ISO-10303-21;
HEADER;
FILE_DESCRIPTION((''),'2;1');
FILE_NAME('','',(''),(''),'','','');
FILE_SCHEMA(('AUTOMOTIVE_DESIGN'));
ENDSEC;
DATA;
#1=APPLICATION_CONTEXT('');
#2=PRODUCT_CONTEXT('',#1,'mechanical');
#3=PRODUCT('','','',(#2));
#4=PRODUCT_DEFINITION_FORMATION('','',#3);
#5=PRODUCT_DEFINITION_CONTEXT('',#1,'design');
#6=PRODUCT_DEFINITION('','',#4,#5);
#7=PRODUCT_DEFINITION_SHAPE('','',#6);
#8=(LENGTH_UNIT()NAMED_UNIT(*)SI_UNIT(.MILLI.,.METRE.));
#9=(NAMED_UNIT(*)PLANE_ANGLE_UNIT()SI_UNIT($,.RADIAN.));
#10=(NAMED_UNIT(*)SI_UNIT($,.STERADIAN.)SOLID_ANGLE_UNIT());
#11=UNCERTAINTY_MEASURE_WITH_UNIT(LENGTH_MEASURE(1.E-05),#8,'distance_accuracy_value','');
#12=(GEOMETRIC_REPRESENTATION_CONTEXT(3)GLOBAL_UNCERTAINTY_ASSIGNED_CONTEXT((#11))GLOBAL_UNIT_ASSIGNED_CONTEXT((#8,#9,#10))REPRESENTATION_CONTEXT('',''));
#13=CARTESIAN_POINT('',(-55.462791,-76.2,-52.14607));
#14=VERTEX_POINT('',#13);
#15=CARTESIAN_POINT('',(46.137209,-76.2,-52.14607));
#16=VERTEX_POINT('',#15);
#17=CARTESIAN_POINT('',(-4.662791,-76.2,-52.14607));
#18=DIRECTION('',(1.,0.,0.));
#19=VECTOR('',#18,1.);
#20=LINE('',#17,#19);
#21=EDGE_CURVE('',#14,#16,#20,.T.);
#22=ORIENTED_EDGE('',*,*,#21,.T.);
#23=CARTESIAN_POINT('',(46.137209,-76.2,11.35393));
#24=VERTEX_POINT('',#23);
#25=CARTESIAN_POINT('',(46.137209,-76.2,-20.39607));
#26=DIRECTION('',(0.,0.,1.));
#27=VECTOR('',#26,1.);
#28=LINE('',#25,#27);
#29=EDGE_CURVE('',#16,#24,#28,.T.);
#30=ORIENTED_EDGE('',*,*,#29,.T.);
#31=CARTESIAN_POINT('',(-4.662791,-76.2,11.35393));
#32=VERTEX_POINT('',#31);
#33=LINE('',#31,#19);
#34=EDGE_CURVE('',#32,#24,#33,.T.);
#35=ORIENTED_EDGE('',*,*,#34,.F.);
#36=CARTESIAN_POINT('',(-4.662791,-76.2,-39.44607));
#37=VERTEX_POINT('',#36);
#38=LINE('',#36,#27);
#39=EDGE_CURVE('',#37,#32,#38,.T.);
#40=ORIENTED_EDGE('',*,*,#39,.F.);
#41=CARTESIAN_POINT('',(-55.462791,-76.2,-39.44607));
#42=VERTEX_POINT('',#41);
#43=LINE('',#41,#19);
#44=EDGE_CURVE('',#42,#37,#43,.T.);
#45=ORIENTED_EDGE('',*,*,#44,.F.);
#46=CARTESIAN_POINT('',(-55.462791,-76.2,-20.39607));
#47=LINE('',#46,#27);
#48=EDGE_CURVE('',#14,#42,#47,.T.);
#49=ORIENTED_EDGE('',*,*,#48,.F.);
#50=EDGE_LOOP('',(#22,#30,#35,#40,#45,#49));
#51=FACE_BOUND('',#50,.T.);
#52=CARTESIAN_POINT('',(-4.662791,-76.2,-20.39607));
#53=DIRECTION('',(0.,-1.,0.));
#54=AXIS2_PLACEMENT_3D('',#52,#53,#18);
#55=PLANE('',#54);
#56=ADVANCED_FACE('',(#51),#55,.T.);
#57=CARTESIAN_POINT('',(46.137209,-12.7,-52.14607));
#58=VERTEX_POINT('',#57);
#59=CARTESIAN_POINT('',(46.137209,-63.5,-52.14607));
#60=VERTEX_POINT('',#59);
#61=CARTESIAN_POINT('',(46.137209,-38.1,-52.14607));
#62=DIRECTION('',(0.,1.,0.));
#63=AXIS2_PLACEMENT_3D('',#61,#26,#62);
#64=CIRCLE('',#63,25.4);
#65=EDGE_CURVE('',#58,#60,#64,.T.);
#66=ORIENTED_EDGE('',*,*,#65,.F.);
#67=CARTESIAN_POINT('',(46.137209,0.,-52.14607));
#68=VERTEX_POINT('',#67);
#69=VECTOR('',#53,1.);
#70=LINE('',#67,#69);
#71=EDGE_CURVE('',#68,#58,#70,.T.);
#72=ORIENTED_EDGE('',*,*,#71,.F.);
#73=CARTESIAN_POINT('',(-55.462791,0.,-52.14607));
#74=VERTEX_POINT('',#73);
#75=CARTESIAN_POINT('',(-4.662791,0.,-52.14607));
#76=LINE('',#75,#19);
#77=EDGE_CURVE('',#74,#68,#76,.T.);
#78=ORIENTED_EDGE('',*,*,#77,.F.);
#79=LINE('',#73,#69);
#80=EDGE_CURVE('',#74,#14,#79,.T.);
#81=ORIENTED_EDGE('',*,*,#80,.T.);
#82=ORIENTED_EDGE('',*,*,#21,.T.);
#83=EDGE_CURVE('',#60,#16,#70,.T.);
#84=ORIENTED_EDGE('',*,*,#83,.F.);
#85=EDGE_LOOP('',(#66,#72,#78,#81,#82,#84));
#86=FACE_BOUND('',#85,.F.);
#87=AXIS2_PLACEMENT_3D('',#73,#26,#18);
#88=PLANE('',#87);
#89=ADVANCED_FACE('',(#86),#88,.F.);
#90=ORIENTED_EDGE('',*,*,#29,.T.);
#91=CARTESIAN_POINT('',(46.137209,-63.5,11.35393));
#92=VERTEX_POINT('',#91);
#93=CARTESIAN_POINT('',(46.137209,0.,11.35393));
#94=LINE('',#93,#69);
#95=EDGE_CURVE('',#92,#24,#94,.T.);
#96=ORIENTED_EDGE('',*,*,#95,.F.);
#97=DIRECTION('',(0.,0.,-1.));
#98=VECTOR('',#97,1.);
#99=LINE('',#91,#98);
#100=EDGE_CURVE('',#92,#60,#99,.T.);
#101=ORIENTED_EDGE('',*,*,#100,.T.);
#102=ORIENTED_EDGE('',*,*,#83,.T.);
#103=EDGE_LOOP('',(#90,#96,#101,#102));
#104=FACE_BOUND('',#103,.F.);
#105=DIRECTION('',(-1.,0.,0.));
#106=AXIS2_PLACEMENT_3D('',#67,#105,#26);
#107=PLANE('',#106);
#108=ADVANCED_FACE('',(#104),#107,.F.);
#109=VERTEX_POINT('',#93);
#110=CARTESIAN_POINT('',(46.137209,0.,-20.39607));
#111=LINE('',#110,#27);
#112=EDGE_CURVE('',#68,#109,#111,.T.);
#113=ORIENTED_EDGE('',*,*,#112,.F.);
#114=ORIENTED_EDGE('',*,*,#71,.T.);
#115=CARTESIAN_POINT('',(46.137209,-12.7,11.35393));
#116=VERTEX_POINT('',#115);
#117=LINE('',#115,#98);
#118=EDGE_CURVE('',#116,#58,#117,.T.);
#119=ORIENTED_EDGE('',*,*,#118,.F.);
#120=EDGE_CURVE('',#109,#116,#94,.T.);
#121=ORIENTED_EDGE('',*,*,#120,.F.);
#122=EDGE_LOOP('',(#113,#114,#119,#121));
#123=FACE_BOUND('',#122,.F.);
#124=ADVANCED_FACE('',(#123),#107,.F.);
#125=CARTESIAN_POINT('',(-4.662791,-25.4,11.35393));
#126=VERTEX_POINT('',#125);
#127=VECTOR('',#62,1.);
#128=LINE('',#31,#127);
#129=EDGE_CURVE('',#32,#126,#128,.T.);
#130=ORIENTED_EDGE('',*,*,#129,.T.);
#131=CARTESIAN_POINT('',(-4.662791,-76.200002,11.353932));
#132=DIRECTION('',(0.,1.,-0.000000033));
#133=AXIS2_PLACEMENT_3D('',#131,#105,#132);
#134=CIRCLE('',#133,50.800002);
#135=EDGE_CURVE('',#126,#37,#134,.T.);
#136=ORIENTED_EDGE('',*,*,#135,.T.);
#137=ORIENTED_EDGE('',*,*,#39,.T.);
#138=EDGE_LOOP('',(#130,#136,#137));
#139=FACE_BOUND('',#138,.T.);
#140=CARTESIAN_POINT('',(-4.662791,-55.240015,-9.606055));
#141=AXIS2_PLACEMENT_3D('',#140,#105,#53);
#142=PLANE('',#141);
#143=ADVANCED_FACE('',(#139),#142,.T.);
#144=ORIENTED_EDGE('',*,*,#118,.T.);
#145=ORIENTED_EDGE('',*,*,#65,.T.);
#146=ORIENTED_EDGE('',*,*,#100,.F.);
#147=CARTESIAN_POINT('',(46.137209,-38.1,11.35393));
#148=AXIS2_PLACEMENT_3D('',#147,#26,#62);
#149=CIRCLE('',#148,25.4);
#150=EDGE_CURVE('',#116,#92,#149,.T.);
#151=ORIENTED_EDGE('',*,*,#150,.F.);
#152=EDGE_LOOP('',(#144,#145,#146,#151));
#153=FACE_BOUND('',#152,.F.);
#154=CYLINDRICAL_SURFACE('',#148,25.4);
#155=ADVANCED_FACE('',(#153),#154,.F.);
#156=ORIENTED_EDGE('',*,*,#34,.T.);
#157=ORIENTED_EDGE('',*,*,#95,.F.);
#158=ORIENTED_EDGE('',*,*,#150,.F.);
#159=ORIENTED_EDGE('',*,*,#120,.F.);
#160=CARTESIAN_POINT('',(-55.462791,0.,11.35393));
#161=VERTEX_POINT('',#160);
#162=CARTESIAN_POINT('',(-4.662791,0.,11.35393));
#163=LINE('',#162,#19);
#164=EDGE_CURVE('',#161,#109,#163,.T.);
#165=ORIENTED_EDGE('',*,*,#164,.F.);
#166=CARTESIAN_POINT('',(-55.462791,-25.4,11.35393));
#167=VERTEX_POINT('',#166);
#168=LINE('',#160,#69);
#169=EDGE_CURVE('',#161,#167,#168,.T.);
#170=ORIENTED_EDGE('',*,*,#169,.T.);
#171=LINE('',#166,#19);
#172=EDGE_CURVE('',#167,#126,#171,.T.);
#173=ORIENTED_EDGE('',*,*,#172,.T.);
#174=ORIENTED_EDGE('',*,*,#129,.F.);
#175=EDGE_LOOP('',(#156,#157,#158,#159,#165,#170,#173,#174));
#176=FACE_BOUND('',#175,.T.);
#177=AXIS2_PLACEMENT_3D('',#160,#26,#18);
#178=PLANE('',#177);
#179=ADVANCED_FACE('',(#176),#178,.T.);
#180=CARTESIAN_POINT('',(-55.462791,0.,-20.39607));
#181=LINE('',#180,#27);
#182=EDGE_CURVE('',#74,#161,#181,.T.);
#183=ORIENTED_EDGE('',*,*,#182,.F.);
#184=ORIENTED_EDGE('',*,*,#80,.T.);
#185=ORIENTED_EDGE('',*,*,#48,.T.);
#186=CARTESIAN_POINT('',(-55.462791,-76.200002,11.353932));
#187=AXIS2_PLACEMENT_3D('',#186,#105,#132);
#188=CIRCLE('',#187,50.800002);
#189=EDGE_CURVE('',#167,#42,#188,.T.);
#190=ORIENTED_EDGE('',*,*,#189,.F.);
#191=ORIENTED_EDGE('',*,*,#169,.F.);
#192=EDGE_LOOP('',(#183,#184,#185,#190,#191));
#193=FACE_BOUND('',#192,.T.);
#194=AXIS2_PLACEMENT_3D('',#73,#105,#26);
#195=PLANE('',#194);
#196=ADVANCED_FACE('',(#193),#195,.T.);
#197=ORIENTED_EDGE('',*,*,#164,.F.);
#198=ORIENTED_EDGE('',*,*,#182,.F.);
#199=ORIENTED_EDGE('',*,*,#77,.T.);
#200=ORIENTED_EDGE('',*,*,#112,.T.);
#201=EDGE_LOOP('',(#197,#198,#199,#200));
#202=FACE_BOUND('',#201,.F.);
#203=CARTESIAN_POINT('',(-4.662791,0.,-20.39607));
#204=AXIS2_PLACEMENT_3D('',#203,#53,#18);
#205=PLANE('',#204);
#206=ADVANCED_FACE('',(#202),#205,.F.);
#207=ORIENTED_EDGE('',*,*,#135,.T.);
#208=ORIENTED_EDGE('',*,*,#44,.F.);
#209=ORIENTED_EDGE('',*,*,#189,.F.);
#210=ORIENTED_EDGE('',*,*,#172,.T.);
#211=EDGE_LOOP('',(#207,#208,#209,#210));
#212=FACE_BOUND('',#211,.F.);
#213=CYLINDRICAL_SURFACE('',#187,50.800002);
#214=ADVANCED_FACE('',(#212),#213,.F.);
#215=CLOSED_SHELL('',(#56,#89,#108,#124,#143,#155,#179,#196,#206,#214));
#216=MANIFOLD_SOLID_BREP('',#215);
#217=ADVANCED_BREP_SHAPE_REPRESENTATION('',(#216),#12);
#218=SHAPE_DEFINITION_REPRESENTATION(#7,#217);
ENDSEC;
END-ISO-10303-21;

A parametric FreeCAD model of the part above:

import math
import FreeCAD as App
import Part
import Sketcher
from FreeCAD import Vector
Q = App.Units.Quantity


def add_polygon(sketch, points):
    """Adds a closed chain of lines whose ends are joined by coincident constraints."""
    first, n = sketch.GeometryCount, len(points)
    for a, b in zip(points, points[1:] + points[:1]):
        sketch.addGeometry(Part.LineSegment(App.Vector(*a, 0), App.Vector(*b, 0)), False)
    for i in range(n):
        sketch.addConstraint(Sketcher.Constraint("Coincident", first + i, 2, first + (i + 1) % n, 1))

doc = App.newDocument("Part")
body = doc.addObject("PartDesign::Body", "Body")

# Sketch on XZ plane
sketch1 = body.newObject("Sketcher::SketchObject", "Sketch")
sketch1.AttachmentSupport = (doc.getObject("XZ_Plane"), [""])
sketch1.MapMode = "FlatFace"
add_polygon(sketch1, [(-55.462791, 11.35393), (-55.462791, -52.14607), (46.137209, -52.14607), (46.137209, 11.35393)])  # lines 0-3
sketch1.addConstraint(Sketcher.Constraint("Vertical", 0))
sketch1.addConstraint(Sketcher.Constraint("Horizontal", 1))
sketch1.addConstraint(Sketcher.Constraint("Vertical", 2))
sketch1.addConstraint(Sketcher.Constraint("Horizontal", 3))
sketch1.addConstraint(Sketcher.Constraint("DistanceX", 1, 1, 1, 2, Q("4 in")))
sketch1.addConstraint(Sketcher.Constraint("DistanceY", 0, 2, 0, 1, Q("2.5 in")))
sketch1.addConstraint(Sketcher.Constraint("DistanceX", 0, 2, -1, 1, Q("55.462791 mm")))
sketch1.addConstraint(Sketcher.Constraint("DistanceY", 0, 2, -1, 1, Q("52.14607 mm")))
pad1 = body.newObject("PartDesign::Pad", "Pad")
pad1.Profile = sketch1
pad1.Length = Q("3 in")

# Sketch on XY plane
sketch2 = body.newObject("Sketcher::SketchObject", "Sketch001")
sketch2.AttachmentSupport = (doc.getObject("XY_Plane"), [""])
sketch2.MapMode = "FlatFace"
sketch2.AttachmentOffset = App.Placement(Vector(0, 0, 11.35393), App.Rotation())
sketch2.addGeometry(Part.LineSegment(Vector(46.137209, -63.5, 0), Vector(46.137209, -12.7, 0)), False)
sketch2.addGeometry(Part.ArcOfCircle(Part.Circle(Vector(46.137209, -38.1, 0), Vector(0, 0, 1), 25.4), math.radians(90), math.radians(270)), False)
sketch2.addConstraint(Sketcher.Constraint("Coincident", 0, 1, 1, 2))
sketch2.addConstraint(Sketcher.Constraint("Coincident", 1, 1, 0, 2))
sketch2.addConstraint(Sketcher.Constraint("Vertical", 0))
sketch2.addConstraint(Sketcher.Constraint("Vertical", 1, 3, 0, 1))
sketch2.addConstraint(Sketcher.Constraint("Radius", 1, Q("1 in")))
sketch2.addConstraint(Sketcher.Constraint("DistanceY", 1, 3, -1, 1, Q("1.5 in")))
sketch2.addConstraint(Sketcher.Constraint("DistanceX", -1, 1, 1, 3, Q("46.137209 mm")))
pocket1 = body.newObject("PartDesign::Pocket", "Pocket")
pocket1.Profile = sketch2
pocket1.Type = "ThroughAll"

# Sketch on YZ plane
sketch3 = body.newObject("Sketcher::SketchObject", "Sketch002")
sketch3.AttachmentSupport = (doc.getObject("YZ_Plane"), [""])
sketch3.MapMode = "FlatFace"
sketch3.AttachmentOffset = App.Placement(Vector(0, 0, -55.462791), App.Rotation())
sketch3.addGeometry(Part.LineSegment(Vector(-76.2, 11.35393, 0), Vector(-25.4, 11.35393, 0)), False)
sketch3.addGeometry(Part.ArcOfCircle(Part.Circle(Vector(-76.200002, 11.353932, 0), Vector(0, 0, 1), 50.800002), math.radians(-89.999998), math.radians(-0.000002)), False)
sketch3.addGeometry(Part.LineSegment(Vector(-76.2, -39.44607, 0), Vector(-76.2, 11.35393, 0)), False)
sketch3.addConstraint(Sketcher.Constraint("Coincident", 0, 2, 1, 2))
sketch3.addConstraint(Sketcher.Constraint("Coincident", 1, 1, 2, 1))
sketch3.addConstraint(Sketcher.Constraint("Coincident", 2, 2, 0, 1))
sketch3.addConstraint(Sketcher.Constraint("Horizontal", 0))
sketch3.addConstraint(Sketcher.Constraint("Vertical", 2))
sketch3.addConstraint(Sketcher.Constraint("Coincident", 2, 2, 1, 3))
sketch3.addConstraint(Sketcher.Constraint("Radius", 1, Q("2.0000001 in")))
sketch3.addConstraint(Sketcher.Constraint("DistanceX", 1, 3, -1, 1, Q("3.0000001 in")))
sketch3.addConstraint(Sketcher.Constraint("DistanceY", -1, 1, 1, 3, Q("11.353932 mm")))
pocket2 = body.newObject("PartDesign::Pocket", "Pocket001")
pocket2.Profile = sketch3
pocket2.Length = Q("2 in")
pocket2.Reversed = True

doc.recompute()
